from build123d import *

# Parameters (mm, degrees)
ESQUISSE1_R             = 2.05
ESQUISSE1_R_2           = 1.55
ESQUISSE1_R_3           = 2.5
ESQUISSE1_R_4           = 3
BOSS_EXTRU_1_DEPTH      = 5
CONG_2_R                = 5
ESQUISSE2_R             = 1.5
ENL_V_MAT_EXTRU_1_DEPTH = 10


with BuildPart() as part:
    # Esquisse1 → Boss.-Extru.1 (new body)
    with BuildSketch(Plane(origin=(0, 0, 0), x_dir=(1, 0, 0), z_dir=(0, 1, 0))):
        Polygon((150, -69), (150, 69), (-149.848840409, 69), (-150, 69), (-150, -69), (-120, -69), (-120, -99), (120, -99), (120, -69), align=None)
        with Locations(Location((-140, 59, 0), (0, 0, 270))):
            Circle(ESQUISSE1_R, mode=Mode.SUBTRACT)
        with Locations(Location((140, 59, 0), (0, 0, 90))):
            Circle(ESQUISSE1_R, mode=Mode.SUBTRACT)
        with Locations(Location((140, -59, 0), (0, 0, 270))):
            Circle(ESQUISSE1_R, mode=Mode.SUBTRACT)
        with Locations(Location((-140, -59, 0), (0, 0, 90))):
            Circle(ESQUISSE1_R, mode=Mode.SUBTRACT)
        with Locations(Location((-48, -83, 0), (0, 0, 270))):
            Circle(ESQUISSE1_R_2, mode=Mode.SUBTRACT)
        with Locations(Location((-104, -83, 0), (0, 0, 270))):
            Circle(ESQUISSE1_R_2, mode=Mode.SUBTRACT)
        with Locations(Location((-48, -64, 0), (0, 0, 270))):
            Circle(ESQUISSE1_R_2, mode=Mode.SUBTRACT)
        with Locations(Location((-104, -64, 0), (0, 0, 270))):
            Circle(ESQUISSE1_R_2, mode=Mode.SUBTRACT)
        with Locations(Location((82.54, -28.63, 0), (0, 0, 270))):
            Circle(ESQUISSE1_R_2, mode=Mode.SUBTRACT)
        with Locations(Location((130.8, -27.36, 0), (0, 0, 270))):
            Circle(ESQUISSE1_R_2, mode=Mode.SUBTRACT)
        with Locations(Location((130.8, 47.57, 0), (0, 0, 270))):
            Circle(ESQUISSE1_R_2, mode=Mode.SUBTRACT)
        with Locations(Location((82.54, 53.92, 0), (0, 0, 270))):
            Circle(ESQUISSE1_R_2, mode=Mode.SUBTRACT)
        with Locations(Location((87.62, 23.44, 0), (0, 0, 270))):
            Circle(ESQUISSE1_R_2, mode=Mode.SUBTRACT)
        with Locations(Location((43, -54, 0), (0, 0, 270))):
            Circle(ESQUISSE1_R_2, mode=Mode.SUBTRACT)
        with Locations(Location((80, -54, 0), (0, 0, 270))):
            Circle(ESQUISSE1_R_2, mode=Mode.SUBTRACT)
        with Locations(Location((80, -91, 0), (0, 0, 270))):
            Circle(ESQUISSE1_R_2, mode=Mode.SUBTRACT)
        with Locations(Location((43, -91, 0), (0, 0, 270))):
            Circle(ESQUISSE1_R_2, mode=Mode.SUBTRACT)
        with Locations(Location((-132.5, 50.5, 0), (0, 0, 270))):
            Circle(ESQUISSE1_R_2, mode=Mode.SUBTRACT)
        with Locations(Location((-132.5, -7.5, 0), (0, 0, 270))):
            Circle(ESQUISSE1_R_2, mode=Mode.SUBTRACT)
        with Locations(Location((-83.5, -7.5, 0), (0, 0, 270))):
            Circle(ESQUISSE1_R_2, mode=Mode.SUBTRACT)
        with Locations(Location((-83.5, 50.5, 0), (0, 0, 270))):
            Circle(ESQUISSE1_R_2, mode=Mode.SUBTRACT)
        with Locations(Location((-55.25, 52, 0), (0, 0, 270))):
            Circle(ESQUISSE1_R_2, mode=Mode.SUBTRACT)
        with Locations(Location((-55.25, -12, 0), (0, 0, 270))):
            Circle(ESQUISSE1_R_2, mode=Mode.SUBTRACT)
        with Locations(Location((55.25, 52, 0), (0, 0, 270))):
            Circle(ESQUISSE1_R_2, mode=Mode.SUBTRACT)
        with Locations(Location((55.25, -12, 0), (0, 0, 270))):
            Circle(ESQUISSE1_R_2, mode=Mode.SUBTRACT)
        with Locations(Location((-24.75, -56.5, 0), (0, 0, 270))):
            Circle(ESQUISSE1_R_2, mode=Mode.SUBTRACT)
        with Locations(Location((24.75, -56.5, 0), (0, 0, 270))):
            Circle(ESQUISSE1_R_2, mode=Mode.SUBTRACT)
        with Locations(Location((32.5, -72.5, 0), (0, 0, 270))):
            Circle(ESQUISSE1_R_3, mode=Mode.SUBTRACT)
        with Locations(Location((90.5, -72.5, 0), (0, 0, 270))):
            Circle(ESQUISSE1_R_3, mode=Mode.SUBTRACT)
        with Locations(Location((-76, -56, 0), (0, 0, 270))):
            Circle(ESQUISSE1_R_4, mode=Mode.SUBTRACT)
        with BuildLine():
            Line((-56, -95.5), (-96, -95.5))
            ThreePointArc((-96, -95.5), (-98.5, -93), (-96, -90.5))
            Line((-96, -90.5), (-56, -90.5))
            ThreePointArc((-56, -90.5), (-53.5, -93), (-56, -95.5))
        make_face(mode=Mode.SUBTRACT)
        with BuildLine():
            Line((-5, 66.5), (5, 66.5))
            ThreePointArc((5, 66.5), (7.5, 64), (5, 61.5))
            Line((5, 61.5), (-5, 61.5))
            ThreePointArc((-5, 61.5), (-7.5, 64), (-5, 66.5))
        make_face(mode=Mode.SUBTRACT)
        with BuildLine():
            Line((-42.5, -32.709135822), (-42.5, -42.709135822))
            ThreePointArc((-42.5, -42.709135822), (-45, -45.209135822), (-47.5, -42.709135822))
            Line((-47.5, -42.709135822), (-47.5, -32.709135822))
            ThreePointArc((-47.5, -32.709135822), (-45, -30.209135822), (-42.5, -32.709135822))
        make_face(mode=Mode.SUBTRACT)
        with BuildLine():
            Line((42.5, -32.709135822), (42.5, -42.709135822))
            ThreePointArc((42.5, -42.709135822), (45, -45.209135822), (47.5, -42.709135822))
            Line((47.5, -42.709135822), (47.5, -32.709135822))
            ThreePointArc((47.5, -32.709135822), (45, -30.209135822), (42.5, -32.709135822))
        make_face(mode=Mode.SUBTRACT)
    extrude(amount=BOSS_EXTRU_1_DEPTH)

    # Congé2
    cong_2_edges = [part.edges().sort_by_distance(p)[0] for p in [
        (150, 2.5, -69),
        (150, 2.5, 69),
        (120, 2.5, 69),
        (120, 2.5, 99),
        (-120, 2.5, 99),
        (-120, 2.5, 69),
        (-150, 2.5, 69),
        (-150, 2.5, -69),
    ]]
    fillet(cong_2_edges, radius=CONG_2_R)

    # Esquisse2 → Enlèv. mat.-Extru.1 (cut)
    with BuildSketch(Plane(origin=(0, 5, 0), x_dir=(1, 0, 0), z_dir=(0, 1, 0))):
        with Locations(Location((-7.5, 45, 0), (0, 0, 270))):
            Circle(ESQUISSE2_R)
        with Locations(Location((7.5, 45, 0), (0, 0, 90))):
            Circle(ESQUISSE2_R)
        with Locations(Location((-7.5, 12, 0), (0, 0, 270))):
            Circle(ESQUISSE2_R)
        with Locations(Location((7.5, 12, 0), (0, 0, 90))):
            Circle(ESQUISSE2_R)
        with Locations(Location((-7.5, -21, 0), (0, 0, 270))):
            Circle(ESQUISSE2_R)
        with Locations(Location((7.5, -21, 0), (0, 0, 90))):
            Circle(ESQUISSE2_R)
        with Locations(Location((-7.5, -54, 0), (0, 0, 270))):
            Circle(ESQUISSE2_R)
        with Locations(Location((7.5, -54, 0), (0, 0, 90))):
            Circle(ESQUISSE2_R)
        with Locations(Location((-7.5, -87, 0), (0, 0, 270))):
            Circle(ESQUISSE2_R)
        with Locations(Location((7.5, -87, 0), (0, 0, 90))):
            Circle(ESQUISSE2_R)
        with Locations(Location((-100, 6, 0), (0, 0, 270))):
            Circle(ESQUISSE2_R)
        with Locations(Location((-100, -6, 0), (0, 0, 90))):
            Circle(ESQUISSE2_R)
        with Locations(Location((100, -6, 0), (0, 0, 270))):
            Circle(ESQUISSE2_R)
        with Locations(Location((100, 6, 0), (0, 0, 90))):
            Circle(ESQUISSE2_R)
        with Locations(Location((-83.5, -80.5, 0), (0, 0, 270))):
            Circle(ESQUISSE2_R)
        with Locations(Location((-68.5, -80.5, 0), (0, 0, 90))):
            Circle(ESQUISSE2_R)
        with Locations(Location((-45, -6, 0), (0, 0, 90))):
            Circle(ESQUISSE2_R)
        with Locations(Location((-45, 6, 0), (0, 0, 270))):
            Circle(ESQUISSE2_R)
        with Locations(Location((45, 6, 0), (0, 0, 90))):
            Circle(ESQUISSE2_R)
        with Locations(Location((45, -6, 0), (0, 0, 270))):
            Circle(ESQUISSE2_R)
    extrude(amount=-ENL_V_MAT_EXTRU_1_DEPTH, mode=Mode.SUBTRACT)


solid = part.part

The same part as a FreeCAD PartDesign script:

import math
import FreeCAD as App
import Part
import Sketcher
from FreeCAD import Vector


def edges_at(feature, points):
    """Names of the edges that pass closest to the given points."""
    edges = feature.Shape.Edges
    near = lambda p: min(range(len(edges)), key=lambda i: edges[i].distToShape(Part.Vertex(*p))[0])
    return sorted({f"Edge{near(p) + 1}" for p in points})

doc = App.newDocument("Part")
body = doc.addObject("PartDesign::Body", "Body")

sketch1 = body.newObject("Sketcher::SketchObject", "Sketch")
sketch1.AttachmentSupport = (doc.getObject("XZ_Plane"), [""])
sketch1.MapMode = "FlatFace"
sketch1.addGeometry([
    Part.LineSegment(Vector(150, 69, 0), Vector(150, -69, 0)),
    Part.LineSegment(Vector(150, -69, 0), Vector(-150, -69, 0)),
    Part.LineSegment(Vector(-150, -69, 0), Vector(-150, 69, 0)),
    Part.LineSegment(Vector(-150, 69, 0), Vector(-120, 69, 0)),
    Part.LineSegment(Vector(-120, 69, 0), Vector(-120, 99, 0)),
    Part.LineSegment(Vector(-120, 99, 0), Vector(120, 99, 0)),
    Part.LineSegment(Vector(120, 99, 0), Vector(120, 69, 0)),
    Part.LineSegment(Vector(120, 69, 0), Vector(150, 69, 0)),
    Part.ArcOfCircle(Part.Circle(Vector(-56, 93, 0), Vector(0, 0, 1), 2.5), math.radians(-90), math.radians(90)),
    Part.LineSegment(Vector(-56, 95.5, 0), Vector(-96, 95.5, 0)),
    Part.ArcOfCircle(Part.Circle(Vector(-96, 93, 0), Vector(0, 0, 1), 2.5), math.radians(90), math.radians(270)),
    Part.LineSegment(Vector(-96, 90.5, 0), Vector(-56, 90.5, 0)),
    Part.Circle(Vector(-104, 83, 0), Vector(0, 0, 1), 1.55),
    Part.Circle(Vector(-140, 59, 0), Vector(0, 0, 1), 2.05),
    Part.Circle(Vector(-104, 64, 0), Vector(0, 0, 1), 1.55),
    Part.Circle(Vector(-76, 56, 0), Vector(0, 0, 1), 3),
    Part.Circle(Vector(-48, 83, 0), Vector(0, 0, 1), 1.55),
    Part.Circle(Vector(-48, 64, 0), Vector(0, 0, 1), 1.55),
    Part.Circle(Vector(-24.75, 56.5, 0), Vector(0, 0, 1), 1.55),
    Part.ArcOfCircle(Part.Circle(Vector(-45, 32.709136, 0), Vector(0, 0, 1), 2.5), math.radians(180), math.radians(360)),
    Part.LineSegment(Vector(-42.5, 32.709136, 0), Vector(-42.5, 42.709136, 0)),
    Part.ArcOfCircle(Part.Circle(Vector(-45, 42.709136, 0), Vector(0, 0, 1), 2.5), math.radians(0), math.radians(180)),
    Part.LineSegment(Vector(-47.5, 42.709136, 0), Vector(-47.5, 32.709136, 0)),
    Part.Circle(Vector(43, 91, 0), Vector(0, 0, 1), 1.55),
    Part.Circle(Vector(32.5, 72.5, 0), Vector(0, 0, 1), 2.5),
    Part.Circle(Vector(24.75, 56.5, 0), Vector(0, 0, 1), 1.55),
    Part.Circle(Vector(80, 91, 0), Vector(0, 0, 1), 1.55),
    Part.Circle(Vector(90.5, 72.5, 0), Vector(0, 0, 1), 2.5),
    Part.Circle(Vector(140, 59, 0), Vector(0, 0, 1), 2.05),
    Part.Circle(Vector(43, 54, 0), Vector(0, 0, 1), 1.55),
    Part.LineSegment(Vector(42.5, 42.709136, 0), Vector(42.5, 32.709136, 0)),
    Part.ArcOfCircle(Part.Circle(Vector(45, 32.709136, 0), Vector(0, 0, 1), 2.5), math.radians(180), math.radians(360)),
    Part.LineSegment(Vector(47.5, 32.709136, 0), Vector(47.5, 42.709136, 0)),
    Part.ArcOfCircle(Part.Circle(Vector(45, 42.709136, 0), Vector(0, 0, 1), 2.5), math.radians(0), math.radians(180)),
    Part.Circle(Vector(80, 54, 0), Vector(0, 0, 1), 1.55),
    Part.Circle(Vector(82.54, 28.63, 0), Vector(0, 0, 1), 1.55),
    Part.Circle(Vector(130.8, 27.36, 0), Vector(0, 0, 1), 1.55),
    Part.Circle(Vector(-132.5, 7.5, 0), Vector(0, 0, 1), 1.55),
    Part.Circle(Vector(-83.5, 7.5, 0), Vector(0, 0, 1), 1.55),
    Part.Circle(Vector(-55.25, 12, 0), Vector(0, 0, 1), 1.55),
    Part.Circle(Vector(-132.5, -50.5, 0), Vector(0, 0, 1), 1.55),
    Part.Circle(Vector(-140, -59, 0), Vector(0, 0, 1), 2.05),
    Part.Circle(Vector(-83.5, -50.5, 0), Vector(0, 0, 1), 1.55),
    Part.Circle(Vector(-55.25, -52, 0), Vector(0, 0, 1), 1.55),
    Part.Circle(Vector(55.25, 12, 0), Vector(0, 0, 1), 1.55),
    Part.Circle(Vector(87.62, -23.44, 0), Vector(0, 0, 1), 1.55),
    Part.ArcOfCircle(Part.Circle(Vector(-5, -64, 0), Vector(0, 0, 1), 2.5), math.radians(90), math.radians(270)),
    Part.LineSegment(Vector(-5, -66.5, 0), Vector(5, -66.5, 0)),
    Part.ArcOfCircle(Part.Circle(Vector(5, -64, 0), Vector(0, 0, 1), 2.5), math.radians(-90), math.radians(90)),
    Part.LineSegment(Vector(5, -61.5, 0), Vector(-5, -61.5, 0)),
    Part.Circle(Vector(55.25, -52, 0), Vector(0, 0, 1), 1.55),
    Part.Circle(Vector(82.54, -53.92, 0), Vector(0, 0, 1), 1.55),
    Part.Circle(Vector(130.8, -47.57, 0), Vector(0, 0, 1), 1.55),
    Part.Circle(Vector(140, -59, 0), Vector(0, 0, 1), 2.05),
], False)
sketch1.addConstraint([
    Sketcher.Constraint("Coincident", 0, 2, 1, 1),
    Sketcher.Constraint("Coincident", 1, 2, 2, 1),
    Sketcher.Constraint("Coincident", 2, 2, 3, 1),
    Sketcher.Constraint("Coincident", 3, 2, 4, 1),
    Sketcher.Constraint("Coincident", 4, 2, 5, 1),
    Sketcher.Constraint("Coincident", 5, 2, 6, 1),
    Sketcher.Constraint("Coincident", 6, 2, 7, 1),
    Sketcher.Constraint("Coincident", 7, 2, 0, 1),
    Sketcher.Constraint("Tangent", 8, 2, 9, 1),
    Sketcher.Constraint("Tangent", 9, 2, 10, 1),
    Sketcher.Constraint("Tangent", 10, 2, 11, 1),
    Sketcher.Constraint("Tangent", 11, 2, 8, 1),
    Sketcher.Constraint("Tangent", 19, 2, 20, 1),
    Sketcher.Constraint("Tangent", 20, 2, 21, 1),
    Sketcher.Constraint("Tangent", 21, 2, 22, 1),
    Sketcher.Constraint("Tangent", 22, 2, 19, 1),
    Sketcher.Constraint("Tangent", 30, 2, 31, 1),
    Sketcher.Constraint("Tangent", 31, 2, 32, 1),
    Sketcher.Constraint("Tangent", 32, 2, 33, 1),
    Sketcher.Constraint("Tangent", 33, 2, 30, 1),
    Sketcher.Constraint("Tangent", 46, 2, 47, 1),
    Sketcher.Constraint("Tangent", 47, 2, 48, 1),
    Sketcher.Constraint("Tangent", 48, 2, 49, 1),
    Sketcher.Constraint("Tangent", 49, 2, 46, 1),
    Sketcher.Constraint("Vertical", 0),
    Sketcher.Constraint("Horizontal", 1),
    Sketcher.Constraint("Vertical", 2),
    Sketcher.Constraint("Horizontal", 3),
    Sketcher.Constraint("Vertical", 4),
    Sketcher.Constraint("Horizontal", 5),
    Sketcher.Constraint("Vertical", 6),
    Sketcher.Constraint("Horizontal", 7),
    Sketcher.Constraint("Horizontal", 9),
    Sketcher.Constraint("Horizontal", 11),
    Sketcher.Constraint("Vertical", 20),
    Sketcher.Constraint("Vertical", 22),
    Sketcher.Constraint("Vertical", 30),
    Sketcher.Constraint("Vertical", 32),
    Sketcher.Constraint("Horizontal", 47),
    Sketcher.Constraint("Horizontal", 49),
    Sketcher.Constraint("Equal", 12, 14),
    Sketcher.Constraint("Equal", 14, 16),
    Sketcher.Constraint("Equal", 16, 17),
    Sketcher.Constraint("Equal", 17, 18),
    Sketcher.Constraint("Equal", 10, 19),
    Sketcher.Constraint("Equal", 18, 23),
    Sketcher.Constraint("Equal", 21, 24),
    Sketcher.Constraint("Equal", 23, 25),
    Sketcher.Constraint("Equal", 25, 26),
    Sketcher.Constraint("Equal", 24, 27),
    Sketcher.Constraint("Equal", 13, 28),
    Sketcher.Constraint("Equal", 26, 29),
    Sketcher.Constraint("Equal", 27, 31),
    Sketcher.Constraint("Equal", 29, 34),
    Sketcher.Constraint("Equal", 34, 35),
    Sketcher.Constraint("Equal", 35, 36),
    Sketcher.Constraint("Equal", 36, 37),
    Sketcher.Constraint("Equal", 37, 38),
    Sketcher.Constraint("Equal", 38, 39),
    Sketcher.Constraint("Equal", 39, 40),
    Sketcher.Constraint("Equal", 28, 41),
    Sketcher.Constraint("Equal", 40, 42),
    Sketcher.Constraint("Equal", 42, 43),
    Sketcher.Constraint("Equal", 43, 44),
    Sketcher.Constraint("Equal", 44, 45),
    Sketcher.Constraint("Equal", 33, 46),
    Sketcher.Constraint("Equal", 45, 50),
    Sketcher.Constraint("Equal", 50, 51),
    Sketcher.Constraint("Equal", 51, 52),
    Sketcher.Constraint("Equal", 41, 53),
    Sketcher.Constraint("Symmetric", 28, 3, 41, 3, -1, 1),
    Sketcher.Constraint("Symmetric", 13, 3, 53, 3, -1, 1),
    Sketcher.Constraint("Symmetric", 0, 2, 2, 2, -1, 1),
    Sketcher.Constraint("Symmetric", 18, 3, 25, 3, -2),
    Sketcher.Constraint("Symmetric", 13, 3, 28, 3, -2),
    Sketcher.Constraint("Symmetric", 19, 3, 31, 3, -2),
    Sketcher.Constraint("Symmetric", 39, 3, 44, 3, -2),
    Sketcher.Constraint("Symmetric", 43, 3, 50, 3, -2),
    Sketcher.Constraint("Symmetric", 3, 2, 6, 2, -2),
    Sketcher.Constraint("Horizontal", 12, 3, 16, 3),
    Sketcher.Constraint("Horizontal", 14, 3, 17, 3),
    Sketcher.Constraint("Horizontal", 23, 3, 26, 3),
    Sketcher.Constraint("Horizontal", 24, 3, 27, 3),
    Sketcher.Constraint("Horizontal", 21, 3, 33, 3),
    Sketcher.Constraint("Horizontal", 29, 3, 34, 3),
    Sketcher.Constraint("Horizontal", 37, 3, 38, 3),
    Sketcher.Constraint("Horizontal", 40, 3, 42, 3),
    Sketcher.Constraint("Vertical", 12, 3, 14, 3),
    Sketcher.Constraint("Vertical", 16, 3, 17, 3),
    Sketcher.Constraint("Vertical", 23, 3, 29, 3),
    Sketcher.Constraint("Vertical", 26, 3, 34, 3),
    Sketcher.Constraint("Vertical", 37, 3, 40, 3),
    Sketcher.Constraint("Vertical", 38, 3, 42, 3),
    Sketcher.Constraint("Vertical", 39, 3, 43, 3),
    Sketcher.Constraint("Vertical", 35, 3, 51, 3),
    Sketcher.Constraint("Vertical", 36, 3, 52, 3),
    Sketcher.Constraint("Equal", 7, 4),
    Sketcher.Constraint("Equal", 49, 20),
    Sketcher.Constraint("Diameter", 15, 6.0),
    Sketcher.Constraint("Diameter", 24, 5.0),
    Sketcher.Constraint("Diameter", 12, 3.1),
    Sketcher.Constraint("Diameter", 13, 4.1),
    Sketcher.Constraint("DistanceX", 1, 2, 1, 1, 300.0),
    Sketcher.Constraint("DistanceX", 3, 1, 3, 2, 30.0),
    Sketcher.Constraint("DistanceX", 9, 2, 9, 1, 40.0),
    Sketcher.Constraint("DistanceX", 47, 1, 47, 2, 10.0),
    Sketcher.Constraint("DistanceY", 0, 2, 0, 1, 138.0),
    Sketcher.Constraint("DistanceX", 8, 3, -1, 1, 56.0),
    Sketcher.Constraint("DistanceY", -1, 1, 8, 3, 93.0),
    Sketcher.Constraint("DistanceX", 12, 3, -1, 1, 104.0),
    Sketcher.Constraint("DistanceY", -1, 1, 12, 3, 83.0),
    Sketcher.Constraint("DistanceX", 13, 3, -1, 1, 140.0),
    Sketcher.Constraint("DistanceY", -1, 1, 13, 3, 59.0),
    Sketcher.Constraint("DistanceY", -1, 1, 14, 3, 64.0),
    Sketcher.Constraint("DistanceX", 15, 3, -1, 1, 76.0),
    Sketcher.Constraint("DistanceY", -1, 1, 15, 3, 56.0),
    Sketcher.Constraint("DistanceX", 16, 3, -1, 1, 48.0),
    Sketcher.Constraint("DistanceX", 19, 3, -1, 1, 45.0),
    Sketcher.Constraint("DistanceX", -1, 1, 23, 3, 43.0),
    Sketcher.Constraint("DistanceY", -1, 1, 23, 3, 91.0),
    Sketcher.Constraint("DistanceX", -1, 1, 26, 3, 80.0),
    Sketcher.Constraint("DistanceY", -1, 1, 29, 3, 54.0),
    Sketcher.Constraint("DistanceY", -1, 1, 39, 3, 12.0),
    Sketcher.Constraint("DistanceY", 43, 3, -1, 1, 52.0),
    Sketcher.Constraint("DistanceX", 46, 3, -1, 1, 5.0),
    Sketcher.Constraint("DistanceY", 46, 3, -1, 1, 64.0),
    Sketcher.Constraint("DistanceY", -1, 1, 18, 3, 56.5),
    Sketcher.Constraint("DistanceX", -1, 1, 24, 3, 32.5),
    Sketcher.Constraint("DistanceY", -1, 1, 24, 3, 72.5),
    Sketcher.Constraint("DistanceX", -1, 1, 27, 3, 90.5),
    Sketcher.Constraint("DistanceX", -1, 1, 36, 3, 130.8),
    Sketcher.Constraint("DistanceX", 37, 3, -1, 1, 132.5),
    Sketcher.Constraint("DistanceY", -1, 1, 37, 3, 7.5),
    Sketcher.Constraint("DistanceX", 38, 3, -1, 1, 83.5),
    Sketcher.Constraint("DistanceY", 40, 3, -1, 1, 50.5),
    Sketcher.Constraint("DistanceX", 18, 3, -1, 1, 24.75),
    Sketcher.Constraint("DistanceX", -1, 1, 35, 3, 82.54),
    Sketcher.Constraint("DistanceY", -1, 1, 35, 3, 28.63),
    Sketcher.Constraint("DistanceY", -1, 1, 36, 3, 27.36),
    Sketcher.Constraint("DistanceX", 39, 3, -1, 1, 55.25),
    Sketcher.Constraint("DistanceX", -1, 1, 45, 3, 87.62),
    Sketcher.Constraint("DistanceY", 45, 3, -1, 1, 23.44),
    Sketcher.Constraint("DistanceY", 51, 3, -1, 1, 53.92),
    Sketcher.Constraint("DistanceY", 52, 3, -1, 1, 47.57),
    Sketcher.Constraint("DistanceY", -1, 1, 19, 3, 32.709136),
])
pad1 = body.newObject("PartDesign::Pad", "Pad")
pad1.Profile = sketch1
pad1.Length = 5
pad1.Reversed = True
doc.recompute()

fillet = body.newObject("PartDesign::Fillet", "Fillet")
fillet.Base = (pad1, edges_at(pad1, [
    (150, 2.5, -69),
    (150, 2.5, 69),
    (120, 2.5, 69),
    (120, 2.5, 99),
    (-120, 2.5, 99),
    (-120, 2.5, 69),
    (-150, 2.5, 69),
    (-150, 2.5, -69),
]))
fillet.Radius = 5

sketch2 = body.newObject("Sketcher::SketchObject", "Sketch001")
sketch2.AttachmentSupport = (doc.getObject("XZ_Plane"), [""])
sketch2.MapMode = "FlatFace"
sketch2.AttachmentOffset = App.Placement(Vector(0, 0, -5), App.Rotation())
sketch2.addGeometry([
    Part.Circle(Vector(-7.5, -45, 0), Vector(0, 0, 1), 1.5),
    Part.Circle(Vector(7.5, -45, 0), Vector(0, 0, 1), 1.5),
    Part.Circle(Vector(-7.5, -12, 0), Vector(0, 0, 1), 1.5),
    Part.Circle(Vector(7.5, -12, 0), Vector(0, 0, 1), 1.5),
    Part.Circle(Vector(-7.5, 21, 0), Vector(0, 0, 1), 1.5),
    Part.Circle(Vector(7.5, 21, 0), Vector(0, 0, 1), 1.5),
    Part.Circle(Vector(-7.5, 54, 0), Vector(0, 0, 1), 1.5),
    Part.Circle(Vector(7.5, 54, 0), Vector(0, 0, 1), 1.5),
    Part.Circle(Vector(-7.5, 87, 0), Vector(0, 0, 1), 1.5),
    Part.Circle(Vector(7.5, 87, 0), Vector(0, 0, 1), 1.5),
    Part.Circle(Vector(-100, -6, 0), Vector(0, 0, 1), 1.5),
    Part.Circle(Vector(-100, 6, 0), Vector(0, 0, 1), 1.5),
    Part.Circle(Vector(100, 6, 0), Vector(0, 0, 1), 1.5),
    Part.Circle(Vector(100, -6, 0), Vector(0, 0, 1), 1.5),
    Part.Circle(Vector(-83.5, 80.5, 0), Vector(0, 0, 1), 1.5),
    Part.Circle(Vector(-68.5, 80.5, 0), Vector(0, 0, 1), 1.5),
    Part.Circle(Vector(-45, 6, 0), Vector(0, 0, 1), 1.5),
    Part.Circle(Vector(-45, -6, 0), Vector(0, 0, 1), 1.5),
    Part.Circle(Vector(45, -6, 0), Vector(0, 0, 1), 1.5),
    Part.Circle(Vector(45, 6, 0), Vector(0, 0, 1), 1.5),
], False)
sketch2.addConstraint([
    Sketcher.Constraint("Equal", 0, 1),
    Sketcher.Constraint("Equal", 1, 2),
    Sketcher.Constraint("Equal", 2, 3),
    Sketcher.Constraint("Equal", 3, 4),
    Sketcher.Constraint("Equal", 4, 5),
    Sketcher.Constraint("Equal", 5, 6),
    Sketcher.Constraint("Equal", 6, 7),
    Sketcher.Constraint("Equal", 7, 8),
    Sketcher.Constraint("Equal", 8, 9),
    Sketcher.Constraint("Equal", 9, 10),
    Sketcher.Constraint("Equal", 10, 11),
    Sketcher.Constraint("Equal", 11, 12),
    Sketcher.Constraint("Equal", 12, 13),
    Sketcher.Constraint("Equal", 13, 14),
    Sketcher.Constraint("Equal", 14, 15),
    Sketcher.Constraint("Equal", 15, 16),
    Sketcher.Constraint("Equal", 16, 17),
    Sketcher.Constraint("Equal", 17, 18),
    Sketcher.Constraint("Equal", 18, 19),
    Sketcher.Constraint("Symmetric", 10, 3, 12, 3, -1, 1),
    Sketcher.Constraint("Symmetric", 11, 3, 13, 3, -1, 1),
    Sketcher.Constraint("Symmetric", 16, 3, 18, 3, -1, 1),
    Sketcher.Constraint("Symmetric", 17, 3, 19, 3, -1, 1),
    Sketcher.Constraint("Symmetric", 0, 3, 1, 3, -2),
    Sketcher.Constraint("Symmetric", 2, 3, 3, 3, -2),
    Sketcher.Constraint("Symmetric", 4, 3, 5, 3, -2),
    Sketcher.Constraint("Symmetric", 6, 3, 7, 3, -2),
    Sketcher.Constraint("Symmetric", 8, 3, 9, 3, -2),
    Sketcher.Constraint("Symmetric", 11, 3, 12, 3, -2),
    Sketcher.Constraint("Symmetric", 17, 3, 18, 3, -2),
    Sketcher.Constraint("Horizontal", 14, 3, 15, 3),
    Sketcher.Constraint("Horizontal", 12, 3, 16, 3),
    Sketcher.Constraint("Vertical", 0, 3, 2, 3),
    Sketcher.Constraint("Vertical", 2, 3, 4, 3),
    Sketcher.Constraint("Vertical", 4, 3, 6, 3),
    Sketcher.Constraint("Vertical", 6, 3, 8, 3),
    Sketcher.Constraint("Diameter", 0, 3.0),
    Sketcher.Constraint("DistanceY", 0, 3, -1, 1, 45.0),
    Sketcher.Constraint("DistanceY", 2, 3, -1, 1, 12.0),
    Sketcher.Constraint("DistanceY", -1, 1, 4, 3, 21.0),
    Sketcher.Constraint("DistanceY", -1, 1, 6, 3, 54.0),
    Sketcher.Constraint("DistanceY", -1, 1, 8, 3, 87.0),
    Sketcher.Constraint("DistanceX", 10, 3, -1, 1, 100.0),
    Sketcher.Constraint("DistanceY", 10, 3, -1, 1, 6.0),
    Sketcher.Constraint("DistanceX", 16, 3, -1, 1, 45.0),
    Sketcher.Constraint("DistanceX", 0, 3, 1, 3, 15.0),
    Sketcher.Constraint("DistanceX", 14, 3, 8, 3, 76.0),
    Sketcher.Constraint("DistanceX", 14, 3, 15, 3, 15.0),
    Sketcher.Constraint("DistanceY", -1, 1, 14, 3, 80.5),
])
pocket1 = body.newObject("PartDesign::Pocket", "Pocket")
pocket1.Profile = sketch2
pocket1.Length = 10
pocket1.Reversed = True

doc.recompute()
